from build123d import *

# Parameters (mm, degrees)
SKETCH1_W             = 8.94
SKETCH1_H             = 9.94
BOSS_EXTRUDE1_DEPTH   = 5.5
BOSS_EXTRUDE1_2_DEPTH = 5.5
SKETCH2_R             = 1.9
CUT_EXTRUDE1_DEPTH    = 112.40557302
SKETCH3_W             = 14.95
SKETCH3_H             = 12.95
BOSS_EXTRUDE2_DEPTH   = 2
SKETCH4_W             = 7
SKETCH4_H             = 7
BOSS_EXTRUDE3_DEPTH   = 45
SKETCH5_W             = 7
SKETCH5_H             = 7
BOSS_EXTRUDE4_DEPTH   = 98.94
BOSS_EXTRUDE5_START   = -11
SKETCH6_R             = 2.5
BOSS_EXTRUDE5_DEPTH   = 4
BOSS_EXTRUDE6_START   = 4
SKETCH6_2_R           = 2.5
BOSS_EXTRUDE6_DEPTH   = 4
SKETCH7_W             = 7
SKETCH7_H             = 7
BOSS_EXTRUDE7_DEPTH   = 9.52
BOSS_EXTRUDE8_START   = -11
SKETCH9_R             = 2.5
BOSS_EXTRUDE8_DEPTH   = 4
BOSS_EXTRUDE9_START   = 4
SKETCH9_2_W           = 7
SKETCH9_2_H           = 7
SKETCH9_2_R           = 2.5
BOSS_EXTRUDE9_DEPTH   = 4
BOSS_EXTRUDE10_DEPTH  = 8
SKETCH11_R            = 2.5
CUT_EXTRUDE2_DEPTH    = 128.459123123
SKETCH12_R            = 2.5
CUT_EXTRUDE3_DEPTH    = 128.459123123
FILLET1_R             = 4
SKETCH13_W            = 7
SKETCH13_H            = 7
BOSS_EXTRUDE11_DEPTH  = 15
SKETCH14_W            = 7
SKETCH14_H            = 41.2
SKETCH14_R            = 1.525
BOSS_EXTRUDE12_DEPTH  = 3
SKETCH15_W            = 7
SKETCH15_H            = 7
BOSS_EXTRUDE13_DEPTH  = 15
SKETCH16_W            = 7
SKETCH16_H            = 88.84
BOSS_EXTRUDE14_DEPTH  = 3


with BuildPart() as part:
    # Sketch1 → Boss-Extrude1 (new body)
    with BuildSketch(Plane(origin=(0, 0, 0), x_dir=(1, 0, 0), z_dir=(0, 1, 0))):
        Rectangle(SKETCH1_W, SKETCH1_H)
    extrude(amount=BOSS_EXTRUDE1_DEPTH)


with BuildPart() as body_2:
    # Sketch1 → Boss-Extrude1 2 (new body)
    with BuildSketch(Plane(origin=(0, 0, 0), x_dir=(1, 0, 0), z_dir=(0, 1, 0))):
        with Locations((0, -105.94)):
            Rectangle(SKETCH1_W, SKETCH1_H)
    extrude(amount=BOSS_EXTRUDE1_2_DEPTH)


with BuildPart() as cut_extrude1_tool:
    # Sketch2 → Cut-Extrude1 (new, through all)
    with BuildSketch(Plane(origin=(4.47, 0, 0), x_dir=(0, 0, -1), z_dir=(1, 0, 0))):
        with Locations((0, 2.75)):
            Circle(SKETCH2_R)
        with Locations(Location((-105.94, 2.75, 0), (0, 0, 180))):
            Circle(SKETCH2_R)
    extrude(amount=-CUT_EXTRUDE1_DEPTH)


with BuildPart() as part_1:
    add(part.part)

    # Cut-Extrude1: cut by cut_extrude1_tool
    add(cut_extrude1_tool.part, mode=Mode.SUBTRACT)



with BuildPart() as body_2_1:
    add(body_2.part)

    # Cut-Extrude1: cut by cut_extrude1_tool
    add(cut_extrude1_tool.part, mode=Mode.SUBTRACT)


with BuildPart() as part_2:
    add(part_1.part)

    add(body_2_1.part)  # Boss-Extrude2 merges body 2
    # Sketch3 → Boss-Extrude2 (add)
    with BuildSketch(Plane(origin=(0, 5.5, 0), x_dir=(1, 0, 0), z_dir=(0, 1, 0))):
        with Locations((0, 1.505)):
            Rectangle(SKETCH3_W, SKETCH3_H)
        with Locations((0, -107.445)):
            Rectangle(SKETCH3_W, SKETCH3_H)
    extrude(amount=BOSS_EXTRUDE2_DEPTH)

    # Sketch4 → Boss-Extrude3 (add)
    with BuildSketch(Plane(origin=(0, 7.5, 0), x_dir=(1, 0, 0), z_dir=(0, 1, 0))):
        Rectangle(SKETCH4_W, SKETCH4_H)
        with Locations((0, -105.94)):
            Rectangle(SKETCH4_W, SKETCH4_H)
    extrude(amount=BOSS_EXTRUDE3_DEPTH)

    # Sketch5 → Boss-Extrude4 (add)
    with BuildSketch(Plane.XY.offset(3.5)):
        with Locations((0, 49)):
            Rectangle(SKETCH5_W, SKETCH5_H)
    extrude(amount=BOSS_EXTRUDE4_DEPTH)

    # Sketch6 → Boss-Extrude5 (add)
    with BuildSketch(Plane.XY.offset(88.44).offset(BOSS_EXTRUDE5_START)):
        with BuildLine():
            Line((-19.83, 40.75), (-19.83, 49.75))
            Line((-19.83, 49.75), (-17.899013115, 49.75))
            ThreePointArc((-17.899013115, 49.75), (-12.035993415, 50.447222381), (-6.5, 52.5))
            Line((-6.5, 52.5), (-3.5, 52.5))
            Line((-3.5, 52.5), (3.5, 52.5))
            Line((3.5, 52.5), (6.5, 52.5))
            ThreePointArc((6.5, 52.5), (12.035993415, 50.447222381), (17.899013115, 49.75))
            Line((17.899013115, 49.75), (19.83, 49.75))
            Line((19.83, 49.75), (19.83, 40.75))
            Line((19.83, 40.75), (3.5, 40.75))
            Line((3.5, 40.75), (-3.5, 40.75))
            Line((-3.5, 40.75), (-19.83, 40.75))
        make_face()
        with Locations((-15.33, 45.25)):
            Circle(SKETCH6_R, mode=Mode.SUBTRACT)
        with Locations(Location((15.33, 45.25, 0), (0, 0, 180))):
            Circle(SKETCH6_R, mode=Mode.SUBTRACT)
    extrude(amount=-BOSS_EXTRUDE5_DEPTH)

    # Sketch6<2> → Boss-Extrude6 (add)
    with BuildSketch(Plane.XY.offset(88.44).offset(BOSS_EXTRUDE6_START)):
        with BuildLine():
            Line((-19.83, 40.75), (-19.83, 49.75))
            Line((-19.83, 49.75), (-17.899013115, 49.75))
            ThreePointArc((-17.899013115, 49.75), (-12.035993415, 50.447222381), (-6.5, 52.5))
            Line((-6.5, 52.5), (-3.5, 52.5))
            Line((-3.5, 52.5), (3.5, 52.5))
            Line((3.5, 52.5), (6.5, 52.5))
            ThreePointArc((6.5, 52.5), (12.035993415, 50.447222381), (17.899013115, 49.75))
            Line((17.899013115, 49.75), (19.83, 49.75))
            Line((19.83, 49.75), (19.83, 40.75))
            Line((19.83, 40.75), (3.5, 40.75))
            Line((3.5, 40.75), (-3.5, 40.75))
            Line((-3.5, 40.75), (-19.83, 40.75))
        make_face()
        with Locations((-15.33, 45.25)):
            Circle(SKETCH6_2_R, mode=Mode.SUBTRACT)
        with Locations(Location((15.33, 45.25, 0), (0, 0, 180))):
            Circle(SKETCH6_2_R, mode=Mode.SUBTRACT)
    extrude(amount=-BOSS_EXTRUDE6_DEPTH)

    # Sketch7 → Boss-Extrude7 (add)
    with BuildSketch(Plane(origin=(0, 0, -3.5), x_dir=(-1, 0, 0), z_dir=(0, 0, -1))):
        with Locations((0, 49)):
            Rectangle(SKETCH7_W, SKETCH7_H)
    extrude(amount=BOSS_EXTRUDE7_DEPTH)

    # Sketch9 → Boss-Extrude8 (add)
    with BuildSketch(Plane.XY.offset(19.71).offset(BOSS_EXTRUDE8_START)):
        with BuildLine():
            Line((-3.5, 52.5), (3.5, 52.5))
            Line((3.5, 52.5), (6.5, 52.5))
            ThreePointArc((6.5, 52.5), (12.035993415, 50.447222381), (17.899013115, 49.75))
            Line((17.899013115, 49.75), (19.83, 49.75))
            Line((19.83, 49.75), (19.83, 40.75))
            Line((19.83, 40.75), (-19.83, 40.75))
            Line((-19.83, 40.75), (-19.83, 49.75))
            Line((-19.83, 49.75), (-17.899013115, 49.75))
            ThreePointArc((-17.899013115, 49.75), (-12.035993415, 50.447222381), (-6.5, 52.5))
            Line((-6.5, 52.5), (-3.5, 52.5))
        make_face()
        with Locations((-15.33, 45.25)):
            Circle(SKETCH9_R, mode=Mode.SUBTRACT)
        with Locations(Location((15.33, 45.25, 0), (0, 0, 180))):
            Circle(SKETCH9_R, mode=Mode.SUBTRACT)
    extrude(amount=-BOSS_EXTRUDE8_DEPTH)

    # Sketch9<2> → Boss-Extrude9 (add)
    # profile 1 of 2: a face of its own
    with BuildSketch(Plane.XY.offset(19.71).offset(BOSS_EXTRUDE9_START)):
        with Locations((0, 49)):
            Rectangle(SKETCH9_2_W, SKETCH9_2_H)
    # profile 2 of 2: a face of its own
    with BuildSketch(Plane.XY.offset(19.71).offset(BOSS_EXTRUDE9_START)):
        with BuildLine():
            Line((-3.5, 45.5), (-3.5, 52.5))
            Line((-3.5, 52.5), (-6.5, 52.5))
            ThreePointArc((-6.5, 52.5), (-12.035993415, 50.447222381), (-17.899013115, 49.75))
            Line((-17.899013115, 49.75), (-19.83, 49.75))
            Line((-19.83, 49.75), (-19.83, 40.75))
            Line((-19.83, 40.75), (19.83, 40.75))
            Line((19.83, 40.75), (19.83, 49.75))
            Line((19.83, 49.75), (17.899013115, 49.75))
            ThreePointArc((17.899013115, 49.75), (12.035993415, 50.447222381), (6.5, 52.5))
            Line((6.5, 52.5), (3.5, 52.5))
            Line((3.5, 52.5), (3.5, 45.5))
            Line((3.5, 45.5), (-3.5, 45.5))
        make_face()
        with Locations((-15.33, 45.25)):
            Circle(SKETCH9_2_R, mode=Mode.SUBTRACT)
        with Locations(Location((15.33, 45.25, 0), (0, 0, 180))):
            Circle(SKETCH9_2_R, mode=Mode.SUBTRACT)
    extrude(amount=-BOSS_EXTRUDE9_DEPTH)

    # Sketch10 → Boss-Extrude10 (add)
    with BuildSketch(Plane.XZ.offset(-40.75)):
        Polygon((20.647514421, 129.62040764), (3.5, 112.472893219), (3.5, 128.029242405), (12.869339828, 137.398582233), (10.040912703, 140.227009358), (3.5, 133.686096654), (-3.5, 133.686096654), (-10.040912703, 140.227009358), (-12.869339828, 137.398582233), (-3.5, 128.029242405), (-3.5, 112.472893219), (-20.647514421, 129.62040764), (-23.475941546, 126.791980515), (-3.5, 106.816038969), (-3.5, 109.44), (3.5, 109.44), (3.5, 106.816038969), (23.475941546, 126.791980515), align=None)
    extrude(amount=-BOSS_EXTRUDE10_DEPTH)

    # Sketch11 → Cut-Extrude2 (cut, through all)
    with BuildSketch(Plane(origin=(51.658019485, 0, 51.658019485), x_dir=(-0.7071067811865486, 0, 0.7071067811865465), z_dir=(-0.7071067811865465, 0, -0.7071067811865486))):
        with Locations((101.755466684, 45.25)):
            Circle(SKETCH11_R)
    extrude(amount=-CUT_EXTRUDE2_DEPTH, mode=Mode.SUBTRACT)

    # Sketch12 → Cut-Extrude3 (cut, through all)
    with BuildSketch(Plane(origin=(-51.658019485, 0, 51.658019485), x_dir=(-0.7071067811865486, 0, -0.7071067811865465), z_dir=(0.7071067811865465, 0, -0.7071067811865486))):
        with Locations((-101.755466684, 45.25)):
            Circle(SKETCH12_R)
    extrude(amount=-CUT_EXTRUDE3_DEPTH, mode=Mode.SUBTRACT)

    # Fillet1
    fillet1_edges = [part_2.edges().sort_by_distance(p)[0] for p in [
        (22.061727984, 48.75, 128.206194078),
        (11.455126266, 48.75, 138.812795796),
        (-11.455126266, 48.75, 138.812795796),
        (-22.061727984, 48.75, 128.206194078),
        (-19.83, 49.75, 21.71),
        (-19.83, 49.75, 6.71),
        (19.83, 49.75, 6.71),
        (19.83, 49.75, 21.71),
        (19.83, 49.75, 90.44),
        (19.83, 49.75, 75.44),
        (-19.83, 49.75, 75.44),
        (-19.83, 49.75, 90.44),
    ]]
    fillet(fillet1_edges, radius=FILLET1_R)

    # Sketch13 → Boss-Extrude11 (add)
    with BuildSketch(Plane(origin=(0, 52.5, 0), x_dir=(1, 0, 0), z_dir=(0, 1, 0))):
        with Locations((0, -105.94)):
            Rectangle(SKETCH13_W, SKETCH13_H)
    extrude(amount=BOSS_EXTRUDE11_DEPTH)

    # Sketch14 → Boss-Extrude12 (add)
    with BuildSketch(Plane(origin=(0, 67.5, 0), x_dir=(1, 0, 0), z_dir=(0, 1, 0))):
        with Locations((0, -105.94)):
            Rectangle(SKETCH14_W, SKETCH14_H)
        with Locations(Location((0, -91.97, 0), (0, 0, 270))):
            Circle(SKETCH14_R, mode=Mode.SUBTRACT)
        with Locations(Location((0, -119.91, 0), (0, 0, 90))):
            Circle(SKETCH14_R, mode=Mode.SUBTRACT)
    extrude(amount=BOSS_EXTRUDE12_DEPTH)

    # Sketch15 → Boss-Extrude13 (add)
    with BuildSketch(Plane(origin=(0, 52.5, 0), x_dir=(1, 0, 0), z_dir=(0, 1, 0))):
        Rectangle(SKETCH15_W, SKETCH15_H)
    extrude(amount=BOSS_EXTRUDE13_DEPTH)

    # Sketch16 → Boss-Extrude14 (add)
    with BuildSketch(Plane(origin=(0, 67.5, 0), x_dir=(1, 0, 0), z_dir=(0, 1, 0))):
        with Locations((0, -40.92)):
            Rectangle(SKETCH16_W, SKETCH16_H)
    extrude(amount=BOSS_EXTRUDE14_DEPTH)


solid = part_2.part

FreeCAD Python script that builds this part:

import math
import FreeCAD as App
import Part
import Sketcher
from FreeCAD import Vector
Q = App.Units.Quantity


def edges_at(feature, points):
    """Names of the edges that pass closest to the given points."""
    edges = feature.Shape.Edges
    near = lambda p: min(range(len(edges)), key=lambda i: edges[i].distToShape(Part.Vertex(*p))[0])
    return sorted({f"Edge{near(p) + 1}" for p in points})

doc = App.newDocument("Part")
params = doc.addObject("Spreadsheet::Sheet", "Params")
for row, (alias, value) in enumerate([
    ("sketch1_width", "8.94 mm"),
    ("sketch1_height", "9.94 mm"),
    ("pad1_length", "5.5 mm"),
    ("sketch2_width", "8.94 mm"),
    ("sketch2_height", "9.94 mm"),
    ("pad2_length", "5.5 mm"),
    ("sketch3_diameter", "3.8 mm"),
    ("pad3_length", "112.405573 mm"),
    ("sketch4_width", "14.95 mm"),
    ("sketch4_height", "12.95 mm"),
    ("pad4_length", "2 mm"),
    ("sketch5_width", "7 mm"),
    ("pad5_length", "45 mm"),
    ("sketch6_width", "7 mm"),
    ("pad6_length", "98.94 mm"),
    ("sketch7_diameter", "5 mm"),
    ("sketch7_radius", "25 mm"),
    ("sketch7_width", "13 mm"),
    ("sketch7_height", "9 mm"),
    ("sketch7_width2", "39.66 mm"),
    ("pad7_length", "4 mm"),
    ("sketch8_diameter", "5 mm"),
    ("sketch8_radius", "25 mm"),
    ("sketch8_width", "13 mm"),
    ("sketch8_height", "9 mm"),
    ("sketch8_width2", "39.66 mm"),
    ("pad8_length", "4 mm"),
    ("sketch9_width", "7 mm"),
    ("pad9_length", "9.52 mm"),
    ("sketch10_diameter", "5 mm"),
    ("sketch10_radius", "25 mm"),
    ("sketch10_width", "13 mm"),
    ("sketch10_height", "9 mm"),
    ("sketch10_width2", "39.66 mm"),
    ("pad10_length", "4 mm"),
    ("sketch11_diameter", "5 mm"),
    ("sketch11_radius", "25 mm"),
    ("sketch11_width", "13 mm"),
    ("sketch11_height", "9 mm"),
    ("sketch11_width2", "39.66 mm"),
    ("pad11_length", "4 mm"),
    ("sketch12_width", "7 mm"),
    ("sketch12_length", "4 mm"),
    ("pad12_length", "8 mm"),
    ("sketch13_diameter", "5 mm"),
    ("sketch14_diameter", "5 mm"),
    ("fillet_radius", "4 mm"),
    ("sketch15_width", "7 mm"),
    ("pad13_length", "15 mm"),
    ("sketch16_diameter", "3.05 mm"),
    ("sketch16_width", "7 mm"),
    ("sketch16_height", "41.2 mm"),
    ("pad14_length", "3 mm"),
    ("sketch17_width", "7 mm"),
    ("pad15_length", "15 mm"),
    ("sketch18_width", "7 mm"),
    ("sketch18_height", "88.84 mm"),
    ("pad16_length", "3 mm"),
], start=1):
    params.set(f"A{row}", alias)
    params.set(f"B{row}", "=" + value)
    params.setAlias(f"B{row}", alias)

body = doc.addObject("PartDesign::Body", "Body")

# Sketch on XZ plane
sketch1 = body.newObject("Sketcher::SketchObject", "Sketch")
sketch1.AttachmentSupport = (doc.getObject("XZ_Plane"), [""])
sketch1.MapMode = "FlatFace"
sketch1.addGeometry([
    Part.LineSegment(Vector(-4.47, -4.97, 0), Vector(-4.47, 4.97, 0)),
    Part.LineSegment(Vector(-4.47, 4.97, 0), Vector(4.47, 4.97, 0)),
    Part.LineSegment(Vector(4.47, 4.97, 0), Vector(4.47, -4.97, 0)),
    Part.LineSegment(Vector(4.47, -4.97, 0), Vector(-4.47, -4.97, 0)),
], False)
sketch1.addConstraint([
    Sketcher.Constraint("Coincident", 0, 2, 1, 1),
    Sketcher.Constraint("Coincident", 1, 2, 2, 1),
    Sketcher.Constraint("Coincident", 2, 2, 3, 1),
    Sketcher.Constraint("Coincident", 3, 2, 0, 1),
    Sketcher.Constraint("Vertical", 0),
    Sketcher.Constraint("Horizontal", 1),
    Sketcher.Constraint("Vertical", 2),
    Sketcher.Constraint("Horizontal", 3),
    Sketcher.Constraint("Symmetric", 0, 2, 2, 2, -1, 1),
    Sketcher.Constraint("DistanceX", 1, 1, 1, 2, Q("8.94 mm")),
    Sketcher.Constraint("DistanceY", 0, 1, 0, 2, Q("9.94 mm")),
])
sketch1.setExpression("Constraints[9]", "Params.sketch1_width")
sketch1.setExpression("Constraints[10]", "Params.sketch1_height")
pad1 = body.newObject("PartDesign::Pad", "Pad")
pad1.Profile = sketch1
pad1.setExpression("Length", "Params.pad1_length")
pad1.Reversed = True
body2 = doc.addObject("PartDesign::Body", "Body001")

# Sketch on XZ plane
sketch2 = body2.newObject("Sketcher::SketchObject", "Sketch001")
sketch2.AttachmentSupport = (doc.getObject("XZ_Plane001"), [""])
sketch2.MapMode = "FlatFace"
sketch2.addGeometry([
    Part.LineSegment(Vector(-4.47, 100.97, 0), Vector(-4.47, 110.91, 0)),
    Part.LineSegment(Vector(-4.47, 110.91, 0), Vector(4.47, 110.91, 0)),
    Part.LineSegment(Vector(4.47, 110.91, 0), Vector(4.47, 100.97, 0)),
    Part.LineSegment(Vector(4.47, 100.97, 0), Vector(-4.47, 100.97, 0)),
], False)
sketch2.addConstraint([
    Sketcher.Constraint("Coincident", 0, 2, 1, 1),
    Sketcher.Constraint("Coincident", 1, 2, 2, 1),
    Sketcher.Constraint("Coincident", 2, 2, 3, 1),
    Sketcher.Constraint("Coincident", 3, 2, 0, 1),
    Sketcher.Constraint("Vertical", 0),
    Sketcher.Constraint("Horizontal", 1),
    Sketcher.Constraint("Vertical", 2),
    Sketcher.Constraint("Horizontal", 3),
    Sketcher.Constraint("DistanceX", 1, 1, 1, 2, Q("8.94 mm")),
    Sketcher.Constraint("DistanceY", 0, 1, 0, 2, Q("9.94 mm")),
    Sketcher.Constraint("DistanceX", 0, 2, -1, 1, Q("4.47 mm")),
    Sketcher.Constraint("DistanceY", -1, 1, 0, 2, Q("110.91 mm")),
])
sketch2.setExpression("Constraints[8]", "Params.sketch2_width")
sketch2.setExpression("Constraints[9]", "Params.sketch2_height")
pad2 = body2.newObject("PartDesign::Pad", "Pad001")
pad2.Profile = sketch2
pad2.setExpression("Length", "Params.pad2_length")
pad2.Reversed = True
body3 = doc.addObject("PartDesign::Body", "Body002")
body3.AllowCompound = True

# Sketch on YZ plane
sketch3 = body3.newObject("Sketcher::SketchObject", "Sketch002")
sketch3.AttachmentSupport = (doc.getObject("YZ_Plane002"), [""])
sketch3.MapMode = "FlatFace"
sketch3.AttachmentOffset = App.Placement(Vector(0, 0, 4.47), App.Rotation())
sketch3.addGeometry([
    Part.Circle(Vector(2.75, 0, 0), Vector(0, 0, 1), 1.9),
    Part.Circle(Vector(2.75, 105.94, 0), Vector(0, 0, 1), 1.9),
], False)
sketch3.addConstraint([
    Sketcher.Constraint("Equal", 0, 1),
    Sketcher.Constraint("PointOnObject", 0, 3, -1),
    Sketcher.Constraint("Vertical", 0, 3, 1, 3),
    Sketcher.Constraint("Diameter", 0, Q("3.8 mm")),
    Sketcher.Constraint("DistanceX", -1, 1, 0, 3, Q("2.75 mm")),
    Sketcher.Constraint("DistanceY", -1, 1, 1, 3, Q("105.94 mm")),
])
sketch3.setExpression("Constraints[3]", "Params.sketch3_diameter")
pad3 = body3.newObject("PartDesign::Pad", "Pad002")
pad3.Profile = sketch3
pad3.setExpression("Length", "Params.pad3_length")
pad3.Reversed = True
doc.recompute()

body4 = doc.addObject("PartDesign::Body", "Body003")
body4.BaseFeature = body3
boolean = body.newObject("PartDesign::Boolean", "Boolean")
boolean.Type = "Cut"
boolean.addObjects([body4])
doc.recompute()

boolean2 = body2.newObject("PartDesign::Boolean", "Boolean001")
boolean2.Type = "Cut"
boolean2.addObjects([body3])
body.AllowCompound = True
doc.recompute()

boolean3 = body.newObject("PartDesign::Boolean", "Boolean002")
boolean3.Type = "Fuse"
boolean3.addObjects([body2])

# Sketch on XZ plane
sketch4 = body.newObject("Sketcher::SketchObject", "Sketch003")
sketch4.AttachmentSupport = (doc.getObject("XZ_Plane"), [""])
sketch4.MapMode = "FlatFace"
sketch4.AttachmentOffset = App.Placement(Vector(0, 0, -5.5), App.Rotation())
sketch4.addGeometry([
    Part.LineSegment(Vector(-7.475, -7.98, 0), Vector(-7.475, 4.97, 0)),  # 0
    Part.LineSegment(Vector(-7.475, 4.97, 0), Vector(7.475, 4.97, 0)),  # 1
    Part.LineSegment(Vector(7.475, 4.97, 0), Vector(7.475, -7.98, 0)),  # 2
    Part.LineSegment(Vector(7.475, -7.98, 0), Vector(-7.475, -7.98, 0)),  # 3
    Part.LineSegment(Vector(-7.475, 100.97, 0), Vector(-7.475, 113.92, 0)),  # 4
    Part.LineSegment(Vector(-7.475, 113.92, 0), Vector(7.475, 113.92, 0)),  # 5
    Part.LineSegment(Vector(7.475, 113.92, 0), Vector(7.475, 100.97, 0)),  # 6
    Part.LineSegment(Vector(7.475, 100.97, 0), Vector(-7.475, 100.97, 0)),  # 7
], False)
sketch4.addConstraint([
    Sketcher.Constraint("Coincident", 0, 2, 1, 1),
    Sketcher.Constraint("Coincident", 1, 2, 2, 1),
    Sketcher.Constraint("Coincident", 2, 2, 3, 1),
    Sketcher.Constraint("Coincident", 3, 2, 0, 1),
    Sketcher.Constraint("Coincident", 4, 2, 5, 1),
    Sketcher.Constraint("Coincident", 5, 2, 6, 1),
    Sketcher.Constraint("Coincident", 6, 2, 7, 1),
    Sketcher.Constraint("Coincident", 7, 2, 4, 1),
    Sketcher.Constraint("Vertical", 0),
    Sketcher.Constraint("Horizontal", 1),
    Sketcher.Constraint("Vertical", 2),
    Sketcher.Constraint("Horizontal", 3),
    Sketcher.Constraint("Vertical", 4),
    Sketcher.Constraint("Horizontal", 5),
    Sketcher.Constraint("Vertical", 6),
    Sketcher.Constraint("Horizontal", 7),
    Sketcher.Constraint("Vertical", 3, 2, 4, 2),
    Sketcher.Constraint("Vertical", 2, 2, 5, 2),
    Sketcher.Constraint("Equal", 2, 4),
    Sketcher.Constraint("DistanceY", 1, 2, 6, 2, Q("96 mm")),
    Sketcher.Constraint("DistanceX", 1, 1, 1, 2, Q("14.95 mm")),
    Sketcher.Constraint("DistanceY", 0, 1, 0, 2, Q("12.95 mm")),
    Sketcher.Constraint("DistanceY", -1, 1, 0, 2, Q("4.97 mm")),
    Sketcher.Constraint("DistanceX", 0, 2, -1, 1, Q("7.475 mm")),
])
sketch4.setExpression("Constraints[20]", "Params.sketch4_width")
sketch4.setExpression("Constraints[21]", "Params.sketch4_height")
pad4 = body.newObject("PartDesign::Pad", "Pad003")
pad4.Profile = sketch4
pad4.setExpression("Length", "Params.pad4_length")
pad4.Reversed = True

# Sketch on XZ plane
sketch5 = body.newObject("Sketcher::SketchObject", "Sketch004")
sketch5.AttachmentSupport = (doc.getObject("XZ_Plane"), [""])
sketch5.MapMode = "FlatFace"
sketch5.AttachmentOffset = App.Placement(Vector(0, 0, -7.5), App.Rotation())
sketch5.addGeometry([
    Part.LineSegment(Vector(-3.5, -3.5, 0), Vector(-3.5, 3.5, 0)),  # 0
    Part.LineSegment(Vector(-3.5, 3.5, 0), Vector(3.5, 3.5, 0)),  # 1
    Part.LineSegment(Vector(3.5, 3.5, 0), Vector(3.5, -3.5, 0)),  # 2
    Part.LineSegment(Vector(3.5, -3.5, 0), Vector(-3.5, -3.5, 0)),  # 3
    Part.LineSegment(Vector(-3.5, 102.44, 0), Vector(-3.5, 109.44, 0)),  # 4
    Part.LineSegment(Vector(-3.5, 109.44, 0), Vector(3.5, 109.44, 0)),  # 5
    Part.LineSegment(Vector(3.5, 109.44, 0), Vector(3.5, 102.44, 0)),  # 6
    Part.LineSegment(Vector(3.5, 102.44, 0), Vector(-3.5, 102.44, 0)),  # 7
], False)
sketch5.addConstraint([
    Sketcher.Constraint("Coincident", 0, 2, 1, 1),
    Sketcher.Constraint("Coincident", 1, 2, 2, 1),
    Sketcher.Constraint("Coincident", 2, 2, 3, 1),
    Sketcher.Constraint("Coincident", 3, 2, 0, 1),
    Sketcher.Constraint("Coincident", 4, 2, 5, 1),
    Sketcher.Constraint("Coincident", 5, 2, 6, 1),
    Sketcher.Constraint("Coincident", 6, 2, 7, 1),
    Sketcher.Constraint("Coincident", 7, 2, 4, 1),
    Sketcher.Constraint("Vertical", 0),
    Sketcher.Constraint("Horizontal", 1),
    Sketcher.Constraint("Vertical", 2),
    Sketcher.Constraint("Horizontal", 3),
    Sketcher.Constraint("Vertical", 4),
    Sketcher.Constraint("Horizontal", 5),
    Sketcher.Constraint("Vertical", 6),
    Sketcher.Constraint("Horizontal", 7),
    Sketcher.Constraint("Symmetric", 0, 2, 2, 2, -1, 1),
    Sketcher.Constraint("Vertical", 3, 2, 4, 2),
    Sketcher.Constraint("Vertical", 2, 2, 5, 2),
    Sketcher.Constraint("Equal", 7, 0),
    Sketcher.Constraint("Equal", 2, 4),
    Sketcher.Constraint("DistanceX", 1, 1, 1, 2, Q("7 mm")),
    Sketcher.Constraint("DistanceY", -1, 1, 4, 2, Q("109.44 mm")),
])
sketch5.setExpression("Constraints[21]", "Params.sketch5_width")
pad5 = body.newObject("PartDesign::Pad", "Pad004")
pad5.Profile = sketch5
pad5.setExpression("Length", "Params.pad5_length")
pad5.Reversed = True

# Sketch on XY plane
sketch6 = body.newObject("Sketcher::SketchObject", "Sketch005")
sketch6.AttachmentSupport = (doc.getObject("XY_Plane"), [""])
sketch6.MapMode = "FlatFace"
sketch6.AttachmentOffset = App.Placement(Vector(0, 0, 3.5), App.Rotation())
sketch6.addGeometry([
    Part.LineSegment(Vector(-3.5, 52.5, 0), Vector(-3.5, 45.5, 0)),
    Part.LineSegment(Vector(-3.5, 45.5, 0), Vector(3.5, 45.5, 0)),
    Part.LineSegment(Vector(3.5, 45.5, 0), Vector(3.5, 52.5, 0)),
    Part.LineSegment(Vector(3.5, 52.5, 0), Vector(-3.5, 52.5, 0)),
], False)
sketch6.addConstraint([
    Sketcher.Constraint("Coincident", 0, 2, 1, 1),
    Sketcher.Constraint("Coincident", 1, 2, 2, 1),
    Sketcher.Constraint("Coincident", 2, 2, 3, 1),
    Sketcher.Constraint("Coincident", 3, 2, 0, 1),
    Sketcher.Constraint("Vertical", 0),
    Sketcher.Constraint("Horizontal", 1),
    Sketcher.Constraint("Vertical", 2),
    Sketcher.Constraint("Horizontal", 3),
    Sketcher.Constraint("Equal", 3, 0),
    Sketcher.Constraint("DistanceX", 1, 1, 1, 2, Q("7 mm")),
    Sketcher.Constraint("DistanceX", 0, 2, -1, 1, Q("3.5 mm")),
    Sketcher.Constraint("DistanceY", -1, 1, 0, 2, Q("45.5 mm")),
])
sketch6.setExpression("Constraints[9]", "Params.sketch6_width")
pad6 = body.newObject("PartDesign::Pad", "Pad005")
pad6.Profile = sketch6
pad6.setExpression("Length", "Params.pad6_length")

# Sketch on XY plane
sketch7 = body.newObject("Sketcher::SketchObject", "Sketch006")
sketch7.AttachmentSupport = (doc.getObject("XY_Plane"), [""])
sketch7.MapMode = "FlatFace"
sketch7.AttachmentOffset = App.Placement(Vector(0, 0, 77.44), App.Rotation())
sketch7.addGeometry([
    Part.LineSegment(Vector(-19.83, 49.75, 0), Vector(-19.83, 40.75, 0)),  # 0
    Part.LineSegment(Vector(-19.83, 40.75, 0), Vector(19.83, 40.75, 0)),  # 1
    Part.LineSegment(Vector(19.83, 40.75, 0), Vector(19.83, 49.75, 0)),  # 2
    Part.LineSegment(Vector(19.83, 49.75, 0), Vector(17.899013, 49.75, 0)),  # 3
    Part.ArcOfCircle(Part.Circle(Vector(17.899013, 74.75, 0), Vector(0, 0, 1), 25), math.radians(-117.126753), math.radians(-90)),  # 4
    Part.LineSegment(Vector(6.5, 52.5, 0), Vector(-6.5, 52.5, 0)),  # 5
    Part.ArcOfCircle(Part.Circle(Vector(-17.899013, 74.75, 0), Vector(0, 0, 1), 25), math.radians(-90), math.radians(-62.873247)),  # 6
    Part.LineSegment(Vector(-17.899013, 49.75, 0), Vector(-19.83, 49.75, 0)),  # 7
    Part.Circle(Vector(15.33, 45.25, 0), Vector(0, 0, 1), 2.5),  # 8
    Part.Circle(Vector(-15.33, 45.25, 0), Vector(0, 0, 1), 2.5),  # 9
], False)
sketch7.addConstraint([
    Sketcher.Constraint("Coincident", 0, 2, 1, 1),
    Sketcher.Constraint("Coincident", 1, 2, 2, 1),
    Sketcher.Constraint("Coincident", 2, 2, 3, 1),
    Sketcher.Constraint("Tangent", 3, 2, 4, 2),
    Sketcher.Constraint("Coincident", 4, 1, 5, 1),
    Sketcher.Constraint("Coincident", 5, 2, 6, 2),
    Sketcher.Constraint("Tangent", 6, 1, 7, 1),
    Sketcher.Constraint("Coincident", 7, 2, 0, 1),
    Sketcher.Constraint("Vertical", 0),
    Sketcher.Constraint("Horizontal", 1),
    Sketcher.Constraint("Vertical", 2),
    Sketcher.Constraint("Horizontal", 3),
    Sketcher.Constraint("Horizontal", 5),
    Sketcher.Constraint("Horizontal", 7),
    Sketcher.Constraint("Equal", 4, 6),
    Sketcher.Constraint("Equal", 8, 9),
    Sketcher.Constraint("Symmetric", 4, 3, 6, 3, -2),
    Sketcher.Constraint("Symmetric", 8, 3, 9, 3, -2),
    Sketcher.Constraint("Equal", 3, 7),
    Sketcher.Constraint("Diameter", 8, Q("5 mm")),
    Sketcher.Constraint("Radius", 4, Q("25 mm")),
    Sketcher.Constraint("DistanceX", 5, 2, 5, 1, Q("13 mm")),
    Sketcher.Constraint("DistanceY", 0, 2, 0, 1, Q("9 mm")),
    Sketcher.Constraint("DistanceX", 1, 1, 1, 2, Q("39.66 mm")),
    Sketcher.Constraint("DistanceY", -1, 1, 4, 1, Q("52.5 mm")),
    Sketcher.Constraint("DistanceY", 8, 3, 4, 3, Q("29.5 mm")),
    Sketcher.Constraint("DistanceX", 0, 2, 9, 3, Q("4.5 mm")),
    Sketcher.Constraint("DistanceY", -1, 1, 4, 3, Q("74.75 mm")),
])
sketch7.setExpression("Constraints[19]", "Params.sketch7_diameter")
sketch7.setExpression("Constraints[20]", "Params.sketch7_radius")
sketch7.setExpression("Constraints[21]", "Params.sketch7_width")
sketch7.setExpression("Constraints[22]", "Params.sketch7_height")
sketch7.setExpression("Constraints[23]", "Params.sketch7_width2")
pad7 = body.newObject("PartDesign::Pad", "Pad006")
pad7.Profile = sketch7
pad7.setExpression("Length", "Params.pad7_length")
pad7.Reversed = True

# Sketch on XY plane
sketch8 = body.newObject("Sketcher::SketchObject", "Sketch007")
sketch8.AttachmentSupport = (doc.getObject("XY_Plane"), [""])
sketch8.MapMode = "FlatFace"
sketch8.AttachmentOffset = App.Placement(Vector(0, 0, 92.44), App.Rotation())
sketch8.addGeometry([
    Part.LineSegment(Vector(-19.83, 49.75, 0), Vector(-19.83, 40.75, 0)),  # 0
    Part.LineSegment(Vector(-19.83, 40.75, 0), Vector(19.83, 40.75, 0)),  # 1
    Part.LineSegment(Vector(19.83, 40.75, 0), Vector(19.83, 49.75, 0)),  # 2
    Part.LineSegment(Vector(19.83, 49.75, 0), Vector(17.899013, 49.75, 0)),  # 3
    Part.ArcOfCircle(Part.Circle(Vector(17.899013, 74.75, 0), Vector(0, 0, 1), 25), math.radians(-117.126753), math.radians(-90)),  # 4
    Part.LineSegment(Vector(6.5, 52.5, 0), Vector(-6.5, 52.5, 0)),  # 5
    Part.ArcOfCircle(Part.Circle(Vector(-17.899013, 74.75, 0), Vector(0, 0, 1), 25), math.radians(-90), math.radians(-62.873247)),  # 6
    Part.LineSegment(Vector(-17.899013, 49.75, 0), Vector(-19.83, 49.75, 0)),  # 7
    Part.Circle(Vector(15.33, 45.25, 0), Vector(0, 0, 1), 2.5),  # 8
    Part.Circle(Vector(-15.33, 45.25, 0), Vector(0, 0, 1), 2.5),  # 9
], False)
sketch8.addConstraint([
    Sketcher.Constraint("Coincident", 0, 2, 1, 1),
    Sketcher.Constraint("Coincident", 1, 2, 2, 1),
    Sketcher.Constraint("Coincident", 2, 2, 3, 1),
    Sketcher.Constraint("Tangent", 3, 2, 4, 2),
    Sketcher.Constraint("Coincident", 4, 1, 5, 1),
    Sketcher.Constraint("Coincident", 5, 2, 6, 2),
    Sketcher.Constraint("Tangent", 6, 1, 7, 1),
    Sketcher.Constraint("Coincident", 7, 2, 0, 1),
    Sketcher.Constraint("Vertical", 0),
    Sketcher.Constraint("Horizontal", 1),
    Sketcher.Constraint("Vertical", 2),
    Sketcher.Constraint("Horizontal", 3),
    Sketcher.Constraint("Horizontal", 5),
    Sketcher.Constraint("Horizontal", 7),
    Sketcher.Constraint("Equal", 4, 6),
    Sketcher.Constraint("Equal", 8, 9),
    Sketcher.Constraint("Symmetric", 4, 3, 6, 3, -2),
    Sketcher.Constraint("Symmetric", 8, 3, 9, 3, -2),
    Sketcher.Constraint("Equal", 3, 7),
    Sketcher.Constraint("Diameter", 8, Q("5 mm")),
    Sketcher.Constraint("Radius", 4, Q("25 mm")),
    Sketcher.Constraint("DistanceX", 5, 2, 5, 1, Q("13 mm")),
    Sketcher.Constraint("DistanceY", 0, 2, 0, 1, Q("9 mm")),
    Sketcher.Constraint("DistanceX", 1, 1, 1, 2, Q("39.66 mm")),
    Sketcher.Constraint("DistanceY", -1, 1, 4, 1, Q("52.5 mm")),
    Sketcher.Constraint("DistanceY", 8, 3, 4, 3, Q("29.5 mm")),
    Sketcher.Constraint("DistanceX", 0, 2, 9, 3, Q("4.5 mm")),
    Sketcher.Constraint("DistanceY", -1, 1, 4, 3, Q("74.75 mm")),
])
sketch8.setExpression("Constraints[19]", "Params.sketch8_diameter")
sketch8.setExpression("Constraints[20]", "Params.sketch8_radius")
sketch8.setExpression("Constraints[21]", "Params.sketch8_width")
sketch8.setExpression("Constraints[22]", "Params.sketch8_height")
sketch8.setExpression("Constraints[23]", "Params.sketch8_width2")
pad8 = body.newObject("PartDesign::Pad", "Pad007")
pad8.Profile = sketch8
pad8.setExpression("Length", "Params.pad8_length")
pad8.Reversed = True

# Sketch on XY plane
sketch9 = body.newObject("Sketcher::SketchObject", "Sketch008")
sketch9.AttachmentSupport = (doc.getObject("XY_Plane"), [""])
sketch9.MapMode = "FlatFace"
sketch9.AttachmentOffset = App.Placement(Vector(0, 0, -3.5), App.Rotation())
sketch9.addGeometry([
    Part.LineSegment(Vector(3.5, 52.5, 0), Vector(3.5, 45.5, 0)),
    Part.LineSegment(Vector(3.5, 45.5, 0), Vector(-3.5, 45.5, 0)),
    Part.LineSegment(Vector(-3.5, 45.5, 0), Vector(-3.5, 52.5, 0)),
    Part.LineSegment(Vector(-3.5, 52.5, 0), Vector(3.5, 52.5, 0)),
], False)
sketch9.addConstraint([
    Sketcher.Constraint("Coincident", 0, 2, 1, 1),
    Sketcher.Constraint("Coincident", 1, 2, 2, 1),
    Sketcher.Constraint("Coincident", 2, 2, 3, 1),
    Sketcher.Constraint("Coincident", 3, 2, 0, 1),
    Sketcher.Constraint("Vertical", 0),
    Sketcher.Constraint("Horizontal", 1),
    Sketcher.Constraint("Vertical", 2),
    Sketcher.Constraint("Horizontal", 3),
    Sketcher.Constraint("Equal", 3, 0),
    Sketcher.Constraint("DistanceX", 1, 2, 1, 1, Q("7 mm")),
    Sketcher.Constraint("DistanceX", -1, 1, 0, 2, Q("3.5 mm")),
    Sketcher.Constraint("DistanceY", -1, 1, 0, 2, Q("45.5 mm")),
])
sketch9.setExpression("Constraints[9]", "Params.sketch9_width")
pad9 = body.newObject("PartDesign::Pad", "Pad008")
pad9.Profile = sketch9
pad9.setExpression("Length", "Params.pad9_length")
pad9.Reversed = True

# Sketch on XY plane
sketch10 = body.newObject("Sketcher::SketchObject", "Sketch009")
sketch10.AttachmentSupport = (doc.getObject("XY_Plane"), [""])
sketch10.MapMode = "FlatFace"
sketch10.AttachmentOffset = App.Placement(Vector(0, 0, 8.71), App.Rotation())
sketch10.addGeometry([
    Part.ArcOfCircle(Part.Circle(Vector(17.899013, 74.75, 0), Vector(0, 0, 1), 25), math.radians(-117.126753), math.radians(-90)),  # 0
    Part.LineSegment(Vector(6.5, 52.5, 0), Vector(-6.5, 52.5, 0)),  # 1
    Part.ArcOfCircle(Part.Circle(Vector(-17.899013, 74.75, 0), Vector(0, 0, 1), 25), math.radians(-90), math.radians(-62.873247)),  # 2
    Part.LineSegment(Vector(-17.899013, 49.75, 0), Vector(-19.83, 49.75, 0)),  # 3
    Part.LineSegment(Vector(-19.83, 49.75, 0), Vector(-19.83, 40.75, 0)),  # 4
    Part.LineSegment(Vector(-19.83, 40.75, 0), Vector(19.83, 40.75, 0)),  # 5
    Part.LineSegment(Vector(19.83, 40.75, 0), Vector(19.83, 49.75, 0)),  # 6
    Part.LineSegment(Vector(19.83, 49.75, 0), Vector(17.899013, 49.75, 0)),  # 7
    Part.Circle(Vector(15.33, 45.25, 0), Vector(0, 0, 1), 2.5),  # 8
    Part.Circle(Vector(-15.33, 45.25, 0), Vector(0, 0, 1), 2.5),  # 9
], False)
sketch10.addConstraint([
    Sketcher.Constraint("Coincident", 0, 1, 1, 1),
    Sketcher.Constraint("Coincident", 1, 2, 2, 2),
    Sketcher.Constraint("Tangent", 2, 1, 3, 1),
    Sketcher.Constraint("Coincident", 3, 2, 4, 1),
    Sketcher.Constraint("Coincident", 4, 2, 5, 1),
    Sketcher.Constraint("Coincident", 5, 2, 6, 1),
    Sketcher.Constraint("Coincident", 6, 2, 7, 1),
    Sketcher.Constraint("Tangent", 7, 2, 0, 2),
    Sketcher.Constraint("Horizontal", 1),
    Sketcher.Constraint("Horizontal", 3),
    Sketcher.Constraint("Vertical", 4),
    Sketcher.Constraint("Horizontal", 5),
    Sketcher.Constraint("Vertical", 6),
    Sketcher.Constraint("Horizontal", 7),
    Sketcher.Constraint("Equal", 0, 2),
    Sketcher.Constraint("Equal", 8, 9),
    Sketcher.Constraint("Symmetric", 0, 3, 2, 3, -2),
    Sketcher.Constraint("Symmetric", 8, 3, 9, 3, -2),
    Sketcher.Constraint("Equal", 3, 7),
    Sketcher.Constraint("Diameter", 8, Q("5 mm")),
    Sketcher.Constraint("Radius", 0, Q("25 mm")),
    Sketcher.Constraint("DistanceX", 1, 2, 1, 1, Q("13 mm")),
    Sketcher.Constraint("DistanceY", 4, 2, 4, 1, Q("9 mm")),
    Sketcher.Constraint("DistanceX", 5, 1, 5, 2, Q("39.66 mm")),
    Sketcher.Constraint("DistanceY", -1, 1, 0, 1, Q("52.5 mm")),
    Sketcher.Constraint("DistanceY", 8, 3, 0, 3, Q("29.5 mm")),
    Sketcher.Constraint("DistanceX", 3, 2, 9, 3, Q("4.5 mm")),
    Sketcher.Constraint("DistanceY", -1, 1, 0, 3, Q("74.75 mm")),
])
sketch10.setExpression("Constraints[19]", "Params.sketch10_diameter")
sketch10.setExpression("Constraints[20]", "Params.sketch10_radius")
sketch10.setExpression("Constraints[21]", "Params.sketch10_width")
sketch10.setExpression("Constraints[22]", "Params.sketch10_height")
sketch10.setExpression("Constraints[23]", "Params.sketch10_width2")
pad10 = body.newObject("PartDesign::Pad", "Pad009")
pad10.Profile = sketch10
pad10.setExpression("Length", "Params.pad10_length")
pad10.Reversed = True

# Sketch on XY plane
sketch11 = body.newObject("Sketcher::SketchObject", "Sketch010")
sketch11.AttachmentSupport = (doc.getObject("XY_Plane"), [""])
sketch11.MapMode = "FlatFace"
sketch11.AttachmentOffset = App.Placement(Vector(0, 0, 23.71), App.Rotation())
sketch11.addGeometry([
    Part.ArcOfCircle(Part.Circle(Vector(-17.899013, 74.75, 0), Vector(0, 0, 1), 25), math.radians(-90), math.radians(-62.873247)),  # 0
    Part.LineSegment(Vector(-17.899013, 49.75, 0), Vector(-19.83, 49.75, 0)),  # 1
    Part.LineSegment(Vector(-19.83, 49.75, 0), Vector(-19.83, 40.75, 0)),  # 2
    Part.LineSegment(Vector(-19.83, 40.75, 0), Vector(19.83, 40.75, 0)),  # 3
    Part.LineSegment(Vector(19.83, 40.75, 0), Vector(19.83, 49.75, 0)),  # 4
    Part.LineSegment(Vector(19.83, 49.75, 0), Vector(17.899013, 49.75, 0)),  # 5
    Part.ArcOfCircle(Part.Circle(Vector(17.899013, 74.75, 0), Vector(0, 0, 1), 25), math.radians(-117.126753), math.radians(-90)),  # 6
    Part.LineSegment(Vector(6.5, 52.5, 0), Vector(-6.5, 52.5, 0)),  # 7
    Part.Circle(Vector(15.33, 45.25, 0), Vector(0, 0, 1), 2.5),  # 8
    Part.Circle(Vector(-15.33, 45.25, 0), Vector(0, 0, 1), 2.5),  # 9
], False)
sketch11.addConstraint([
    Sketcher.Constraint("Tangent", 0, 1, 1, 1),
    Sketcher.Constraint("Coincident", 1, 2, 2, 1),
    Sketcher.Constraint("Coincident", 2, 2, 3, 1),
    Sketcher.Constraint("Coincident", 3, 2, 4, 1),
    Sketcher.Constraint("Coincident", 4, 2, 5, 1),
    Sketcher.Constraint("Tangent", 5, 2, 6, 2),
    Sketcher.Constraint("Coincident", 6, 1, 7, 1),
    Sketcher.Constraint("Coincident", 7, 2, 0, 2),
    Sketcher.Constraint("Horizontal", 1),
    Sketcher.Constraint("Vertical", 2),
    Sketcher.Constraint("Horizontal", 3),
    Sketcher.Constraint("Vertical", 4),
    Sketcher.Constraint("Horizontal", 5),
    Sketcher.Constraint("Horizontal", 7),
    Sketcher.Constraint("Equal", 0, 6),
    Sketcher.Constraint("Equal", 8, 9),
    Sketcher.Constraint("Symmetric", 0, 3, 6, 3, -2),
    Sketcher.Constraint("Symmetric", 8, 3, 9, 3, -2),
    Sketcher.Constraint("Equal", 1, 5),
    Sketcher.Constraint("Diameter", 8, Q("5 mm")),
    Sketcher.Constraint("Radius", 0, Q("25 mm")),
    Sketcher.Constraint("DistanceX", 7, 2, 7, 1, Q("13 mm")),
    Sketcher.Constraint("DistanceY", 2, 2, 2, 1, Q("9 mm")),
    Sketcher.Constraint("DistanceX", 3, 1, 3, 2, Q("39.66 mm")),
    Sketcher.Constraint("DistanceY", -1, 1, 6, 1, Q("52.5 mm")),
    Sketcher.Constraint("DistanceY", 8, 3, 6, 3, Q("29.5 mm")),
    Sketcher.Constraint("DistanceX", 1, 2, 9, 3, Q("4.5 mm")),
    Sketcher.Constraint("DistanceY", -1, 1, 0, 3, Q("74.75 mm")),
])
sketch11.setExpression("Constraints[19]", "Params.sketch11_diameter")
sketch11.setExpression("Constraints[20]", "Params.sketch11_radius")
sketch11.setExpression("Constraints[21]", "Params.sketch11_width")
sketch11.setExpression("Constraints[22]", "Params.sketch11_height")
sketch11.setExpression("Constraints[23]", "Params.sketch11_width2")
pad11 = body.newObject("PartDesign::Pad", "Pad010")
pad11.Profile = sketch11
pad11.setExpression("Length", "Params.pad11_length")
pad11.Reversed = True

# Sketch on XZ plane
sketch12 = body.newObject("Sketcher::SketchObject", "Sketch011")
sketch12.AttachmentSupport = (doc.getObject("XZ_Plane"), [""])
sketch12.MapMode = "FlatFace"
sketch12.AttachmentOffset = App.Placement(Vector(0, 0, -40.75), App.Rotation())
sketch12.addGeometry([
    Part.LineSegment(Vector(20.647514, 129.620408, 0), Vector(3.5, 112.472893, 0)),  # 0
    Part.LineSegment(Vector(3.5, 112.472893, 0), Vector(3.5, 128.029242, 0)),  # 1
    Part.LineSegment(Vector(3.5, 128.029242, 0), Vector(12.86934, 137.398582, 0)),  # 2
    Part.LineSegment(Vector(12.86934, 137.398582, 0), Vector(10.040913, 140.227009, 0)),  # 3
    Part.LineSegment(Vector(10.040913, 140.227009, 0), Vector(3.5, 133.686097, 0)),  # 4
    Part.LineSegment(Vector(3.5, 133.686097, 0), Vector(-3.5, 133.686097, 0)),  # 5
    Part.LineSegment(Vector(-3.5, 133.686097, 0), Vector(-10.040913, 140.227009, 0)),  # 6
    Part.LineSegment(Vector(-10.040913, 140.227009, 0), Vector(-12.86934, 137.398582, 0)),  # 7
    Part.LineSegment(Vector(-12.86934, 137.398582, 0), Vector(-3.5, 128.029242, 0)),  # 8
    Part.LineSegment(Vector(-3.5, 128.029242, 0), Vector(-3.5, 112.472893, 0)),  # 9
    Part.LineSegment(Vector(-3.5, 112.472893, 0), Vector(-20.647514, 129.620408, 0)),  # 10
    Part.LineSegment(Vector(-20.647514, 129.620408, 0), Vector(-23.475942, 126.791981, 0)),  # 11
    Part.LineSegment(Vector(-23.475942, 126.791981, 0), Vector(-3.5, 106.816039, 0)),  # 12
    Part.LineSegment(Vector(-3.5, 106.816039, 0), Vector(-3.5, 109.44, 0)),  # 13
    Part.LineSegment(Vector(-3.5, 109.44, 0), Vector(3.5, 109.44, 0)),  # 14
    Part.LineSegment(Vector(3.5, 109.44, 0), Vector(3.5, 106.816039, 0)),  # 15
    Part.LineSegment(Vector(3.5, 106.816039, 0), Vector(23.475942, 126.791981, 0)),  # 16
    Part.LineSegment(Vector(23.475942, 126.791981, 0), Vector(20.647514, 129.620408, 0)),  # 17
], False)
sketch12.addConstraint([
    Sketcher.Constraint("Coincident", 0, 2, 1, 1),
    Sketcher.Constraint("Coincident", 1, 2, 2, 1),
    Sketcher.Constraint("Coincident", 2, 2, 3, 1),
    Sketcher.Constraint("Coincident", 3, 2, 4, 1),
    Sketcher.Constraint("Coincident", 4, 2, 5, 1),
    Sketcher.Constraint("Coincident", 5, 2, 6, 1),
    Sketcher.Constraint("Coincident", 6, 2, 7, 1),
    Sketcher.Constraint("Coincident", 7, 2, 8, 1),
    Sketcher.Constraint("Coincident", 8, 2, 9, 1),
    Sketcher.Constraint("Coincident", 9, 2, 10, 1),
    Sketcher.Constraint("Coincident", 10, 2, 11, 1),
    Sketcher.Constraint("Coincident", 11, 2, 12, 1),
    Sketcher.Constraint("Coincident", 12, 2, 13, 1),
    Sketcher.Constraint("Coincident", 13, 2, 14, 1),
    Sketcher.Constraint("Coincident", 14, 2, 15, 1),
    Sketcher.Constraint("Coincident", 15, 2, 16, 1),
    Sketcher.Constraint("Coincident", 16, 2, 17, 1),
    Sketcher.Constraint("Coincident", 17, 2, 0, 1),
    Sketcher.Constraint("Vertical", 1),
    Sketcher.Constraint("Horizontal", 5),
    Sketcher.Constraint("Vertical", 9),
    Sketcher.Constraint("Vertical", 13),
    Sketcher.Constraint("Horizontal", 14),
    Sketcher.Constraint("Vertical", 15),
    Sketcher.Constraint("Symmetric", 3, 2, 6, 2, -2),
    Sketcher.Constraint("Symmetric", 2, 2, 7, 2, -2),
    Sketcher.Constraint("Symmetric", 1, 2, 8, 2, -2),
    Sketcher.Constraint("Symmetric", 12, 2, 15, 2, -2),
    Sketcher.Constraint("Symmetric", 11, 2, 16, 2, -2),
    Sketcher.Constraint("Symmetric", 10, 2, 17, 2, -2),
    Sketcher.Constraint("Parallel", 0, 2),
    Sketcher.Constraint("Perpendicular", 2, 3),
    Sketcher.Constraint("Perpendicular", 3, 4),
    Sketcher.Constraint("Perpendicular", 4, 6),
    Sketcher.Constraint("Perpendicular", 6, 7),
    Sketcher.Constraint("Parallel", 8, 10),
    Sketcher.Constraint("Perpendicular", 10, 11),
    Sketcher.Constraint("Perpendicular", 11, 12),
    Sketcher.Constraint("Vertical", 1, 2, 4, 2),
    Sketcher.Constraint("Vertical", 9, 2, 12, 2),
    Sketcher.Constraint("Equal", 7, 11),
    Sketcher.Constraint("DistanceX", 5, 2, 5, 1, Q("7 mm")),
    Sketcher.Constraint("Distance", 3, Q("4 mm")),
    Sketcher.Constraint("DistanceY", -1, 1, 13, 2, Q("109.44 mm")),
    Sketcher.Constraint("DistanceY", 1, 1, 1, 2, Q("15.556349 mm")),
    Sketcher.Constraint("DistanceY", 13, 1, 13, 2, Q("2.623961 mm")),
    Sketcher.Constraint("DistanceX", 10, 2, 6, 2, Q("10.606602 mm")),
    Sketcher.Constraint("DistanceX", -1, 1, 2, 2, Q("12.86934 mm")),
])
sketch12.setExpression("Constraints[41]", "Params.sketch12_width")
sketch12.setExpression("Constraints[42]", "Params.sketch12_length")
pad12 = body.newObject("PartDesign::Pad", "Pad011")
pad12.Profile = sketch12
pad12.setExpression("Length", "Params.pad12_length")
pad12.Reversed = True

# Sketch on an angled plane
sketch13 = body.newObject("Sketcher::SketchObject", "Sketch012")
sketch13.Placement = App.Placement(Vector(51.658019, 0, 51.658019), App.Rotation(Vector(-0.707106781, 0, 0.707106781), Vector(0, 0.999999999, 0), Vector(-0.707106781, 0, -0.707106781), "ZXY"))
sketch13.addGeometry(Part.Circle(Vector(101.755467, 45.25, 0), Vector(0, 0, 1), 2.5), False)
sketch13.addConstraint([
    Sketcher.Constraint("Diameter", 0, Q("5 mm")),
    Sketcher.Constraint("DistanceY", -1, 1, 0, 3, Q("45.25 mm")),
    Sketcher.Constraint("DistanceX", -1, 1, 0, 3, Q("101.755467 mm")),
])
sketch13.setExpression("Constraints[0]", "Params.sketch13_diameter")
pocket1 = body.newObject("PartDesign::Pocket", "Pocket")
pocket1.Profile = sketch13
pocket1.Type = "ThroughAll"

# Sketch on an angled plane
sketch14 = body.newObject("Sketcher::SketchObject", "Sketch013")
sketch14.Placement = App.Placement(Vector(-51.658019, 0, 51.658019), App.Rotation(Vector(-0.707106781, 0, -0.707106781), Vector(0, 0.999999999, 0), Vector(0.707106781, 0, -0.707106781), "ZXY"))
sketch14.addGeometry(Part.Circle(Vector(-101.755467, 45.25, 0), Vector(0, 0, 1), 2.5), False)
sketch14.addConstraint([
    Sketcher.Constraint("Diameter", 0, Q("5 mm")),
    Sketcher.Constraint("DistanceY", -1, 1, 0, 3, Q("45.25 mm")),
    Sketcher.Constraint("DistanceX", 0, 3, -1, 1, Q("101.755467 mm")),
])
sketch14.setExpression("Constraints[0]", "Params.sketch14_diameter")
pocket2 = body.newObject("PartDesign::Pocket", "Pocket001")
pocket2.Profile = sketch14
pocket2.Type = "ThroughAll"
doc.recompute()

fillet = body.newObject("PartDesign::Fillet", "Fillet")
fillet.Base = (pocket2, edges_at(pocket2, [
    (22.062, 48.75, 128.206),
    (11.455, 48.75, 138.813),
    (-11.455, 48.75, 138.813),
    (-22.062, 48.75, 128.206),
    (-19.83, 49.75, 21.71),
    (-19.83, 49.75, 6.71),
    (19.83, 49.75, 6.71),
    (19.83, 49.75, 21.71),
    (19.83, 49.75, 90.44),
    (19.83, 49.75, 75.44),
    (-19.83, 49.75, 75.44),
    (-19.83, 49.75, 90.44),
]))
fillet.setExpression("Radius", "Params.fillet_radius")

# Sketch on XZ plane
sketch15 = body.newObject("Sketcher::SketchObject", "Sketch014")
sketch15.AttachmentSupport = (doc.getObject("XZ_Plane"), [""])
sketch15.MapMode = "FlatFace"
sketch15.AttachmentOffset = App.Placement(Vector(0, 0, -52.5), App.Rotation())
sketch15.addGeometry([
    Part.LineSegment(Vector(-3.5, 102.44, 0), Vector(-3.5, 109.44, 0)),
    Part.LineSegment(Vector(-3.5, 109.44, 0), Vector(3.5, 109.44, 0)),
    Part.LineSegment(Vector(3.5, 109.44, 0), Vector(3.5, 102.44, 0)),
    Part.LineSegment(Vector(3.5, 102.44, 0), Vector(-3.5, 102.44, 0)),
], False)
sketch15.addConstraint([
    Sketcher.Constraint("Coincident", 0, 2, 1, 1),
    Sketcher.Constraint("Coincident", 1, 2, 2, 1),
    Sketcher.Constraint("Coincident", 2, 2, 3, 1),
    Sketcher.Constraint("Coincident", 3, 2, 0, 1),
    Sketcher.Constraint("Vertical", 0),
    Sketcher.Constraint("Horizontal", 1),
    Sketcher.Constraint("Vertical", 2),
    Sketcher.Constraint("Horizontal", 3),
    Sketcher.Constraint("Equal", 3, 0),
    Sketcher.Constraint("DistanceX", 1, 1, 1, 2, Q("7 mm")),
    Sketcher.Constraint("DistanceX", 0, 2, -1, 1, Q("3.5 mm")),
    Sketcher.Constraint("DistanceY", -1, 1, 0, 2, Q("109.44 mm")),
])
sketch15.setExpression("Constraints[9]", "Params.sketch15_width")
pad13 = body.newObject("PartDesign::Pad", "Pad012")
pad13.Profile = sketch15
pad13.setExpression("Length", "Params.pad13_length")
pad13.Reversed = True

# Sketch on XZ plane
sketch16 = body.newObject("Sketcher::SketchObject", "Sketch015")
sketch16.AttachmentSupport = (doc.getObject("XZ_Plane"), [""])
sketch16.MapMode = "FlatFace"
sketch16.AttachmentOffset = App.Placement(Vector(0, 0, -67.5), App.Rotation())
sketch16.addGeometry([
    Part.LineSegment(Vector(-3.5, 85.34, 0), Vector(-3.5, 126.54, 0)),  # 0
    Part.LineSegment(Vector(-3.5, 126.54, 0), Vector(3.5, 126.54, 0)),  # 1
    Part.LineSegment(Vector(3.5, 126.54, 0), Vector(3.5, 85.34, 0)),  # 2
    Part.LineSegment(Vector(3.5, 85.34, 0), Vector(-3.5, 85.34, 0)),  # 3
    Part.Circle(Vector(0, 119.91, 0), Vector(0, 0, 1), 1.525),  # 4
    Part.Circle(Vector(0, 91.97, 0), Vector(0, 0, 1), 1.525),  # 5
], False)
sketch16.addConstraint([
    Sketcher.Constraint("Coincident", 0, 2, 1, 1),
    Sketcher.Constraint("Coincident", 1, 2, 2, 1),
    Sketcher.Constraint("Coincident", 2, 2, 3, 1),
    Sketcher.Constraint("Coincident", 3, 2, 0, 1),
    Sketcher.Constraint("Vertical", 0),
    Sketcher.Constraint("Horizontal", 1),
    Sketcher.Constraint("Vertical", 2),
    Sketcher.Constraint("Horizontal", 3),
    Sketcher.Constraint("Equal", 4, 5),
    Sketcher.Constraint("PointOnObject", 4, 3, -2),
    Sketcher.Constraint("PointOnObject", 5, 3, -2),
    Sketcher.Constraint("Diameter", 4, Q("3.05 mm")),
    Sketcher.Constraint("DistanceX", 1, 1, 1, 2, Q("7 mm")),
    Sketcher.Constraint("DistanceY", 0, 1, 0, 2, Q("41.2 mm")),
    Sketcher.Constraint("DistanceX", 0, 2, -1, 1, Q("3.5 mm")),
    Sketcher.Constraint("DistanceY", -1, 1, 4, 3, Q("119.91 mm")),
    Sketcher.Constraint("DistanceY", -1, 1, 5, 3, Q("91.97 mm")),
    Sketcher.Constraint("DistanceY", -1, 1, 0, 2, Q("126.54 mm")),
])
sketch16.setExpression("Constraints[11]", "Params.sketch16_diameter")
sketch16.setExpression("Constraints[12]", "Params.sketch16_width")
sketch16.setExpression("Constraints[13]", "Params.sketch16_height")
pad14 = body.newObject("PartDesign::Pad", "Pad013")
pad14.Profile = sketch16
pad14.setExpression("Length", "Params.pad14_length")
pad14.Reversed = True

# Sketch on XZ plane
sketch17 = body.newObject("Sketcher::SketchObject", "Sketch016")
sketch17.AttachmentSupport = (doc.getObject("XZ_Plane"), [""])
sketch17.MapMode = "FlatFace"
sketch17.AttachmentOffset = App.Placement(Vector(0, 0, -52.5), App.Rotation())
sketch17.addGeometry([
    Part.LineSegment(Vector(-3.5, -3.5, 0), Vector(-3.5, 3.5, 0)),
    Part.LineSegment(Vector(-3.5, 3.5, 0), Vector(3.5, 3.5, 0)),
    Part.LineSegment(Vector(3.5, 3.5, 0), Vector(3.5, -3.5, 0)),
    Part.LineSegment(Vector(3.5, -3.5, 0), Vector(-3.5, -3.5, 0)),
], False)
sketch17.addConstraint([
    Sketcher.Constraint("Coincident", 0, 2, 1, 1),
    Sketcher.Constraint("Coincident", 1, 2, 2, 1),
    Sketcher.Constraint("Coincident", 2, 2, 3, 1),
    Sketcher.Constraint("Coincident", 3, 2, 0, 1),
    Sketcher.Constraint("Vertical", 0),
    Sketcher.Constraint("Horizontal", 1),
    Sketcher.Constraint("Vertical", 2),
    Sketcher.Constraint("Horizontal", 3),
    Sketcher.Constraint("Symmetric", 0, 2, 2, 2, -1, 1),
    Sketcher.Constraint("Equal", 3, 0),
    Sketcher.Constraint("DistanceX", 1, 1, 1, 2, Q("7 mm")),
])
sketch17.setExpression("Constraints[10]", "Params.sketch17_width")
pad15 = body.newObject("PartDesign::Pad", "Pad014")
pad15.Profile = sketch17
pad15.setExpression("Length", "Params.pad15_length")
pad15.Reversed = True

# Sketch on XZ plane
sketch18 = body.newObject("Sketcher::SketchObject", "Sketch017")
sketch18.AttachmentSupport = (doc.getObject("XZ_Plane"), [""])
sketch18.MapMode = "FlatFace"
sketch18.AttachmentOffset = App.Placement(Vector(0, 0, -67.5), App.Rotation())
sketch18.addGeometry([
    Part.LineSegment(Vector(-3.5, -3.5, 0), Vector(-3.5, 85.34, 0)),
    Part.LineSegment(Vector(-3.5, 85.34, 0), Vector(3.5, 85.34, 0)),
    Part.LineSegment(Vector(3.5, 85.34, 0), Vector(3.5, -3.5, 0)),
    Part.LineSegment(Vector(3.5, -3.5, 0), Vector(-3.5, -3.5, 0)),
], False)
sketch18.addConstraint([
    Sketcher.Constraint("Coincident", 0, 2, 1, 1),
    Sketcher.Constraint("Coincident", 1, 2, 2, 1),
    Sketcher.Constraint("Coincident", 2, 2, 3, 1),
    Sketcher.Constraint("Coincident", 3, 2, 0, 1),
    Sketcher.Constraint("Vertical", 0),
    Sketcher.Constraint("Horizontal", 1),
    Sketcher.Constraint("Vertical", 2),
    Sketcher.Constraint("Horizontal", 3),
    Sketcher.Constraint("DistanceX", 1, 1, 1, 2, Q("7 mm")),
    Sketcher.Constraint("DistanceY", 0, 1, 0, 2, Q("88.84 mm")),
    Sketcher.Constraint("DistanceX", 0, 2, -1, 1, Q("3.5 mm")),
    Sketcher.Constraint("DistanceY", 2, 2, -1, 1, Q("3.5 mm")),
])
sketch18.setExpression("Constraints[8]", "Params.sketch18_width")
sketch18.setExpression("Constraints[9]", "Params.sketch18_height")
pad16 = body.newObject("PartDesign::Pad", "Pad015")
pad16.Profile = sketch18
pad16.setExpression("Length", "Params.pad16_length")
pad16.Reversed = True

doc.recompute()
